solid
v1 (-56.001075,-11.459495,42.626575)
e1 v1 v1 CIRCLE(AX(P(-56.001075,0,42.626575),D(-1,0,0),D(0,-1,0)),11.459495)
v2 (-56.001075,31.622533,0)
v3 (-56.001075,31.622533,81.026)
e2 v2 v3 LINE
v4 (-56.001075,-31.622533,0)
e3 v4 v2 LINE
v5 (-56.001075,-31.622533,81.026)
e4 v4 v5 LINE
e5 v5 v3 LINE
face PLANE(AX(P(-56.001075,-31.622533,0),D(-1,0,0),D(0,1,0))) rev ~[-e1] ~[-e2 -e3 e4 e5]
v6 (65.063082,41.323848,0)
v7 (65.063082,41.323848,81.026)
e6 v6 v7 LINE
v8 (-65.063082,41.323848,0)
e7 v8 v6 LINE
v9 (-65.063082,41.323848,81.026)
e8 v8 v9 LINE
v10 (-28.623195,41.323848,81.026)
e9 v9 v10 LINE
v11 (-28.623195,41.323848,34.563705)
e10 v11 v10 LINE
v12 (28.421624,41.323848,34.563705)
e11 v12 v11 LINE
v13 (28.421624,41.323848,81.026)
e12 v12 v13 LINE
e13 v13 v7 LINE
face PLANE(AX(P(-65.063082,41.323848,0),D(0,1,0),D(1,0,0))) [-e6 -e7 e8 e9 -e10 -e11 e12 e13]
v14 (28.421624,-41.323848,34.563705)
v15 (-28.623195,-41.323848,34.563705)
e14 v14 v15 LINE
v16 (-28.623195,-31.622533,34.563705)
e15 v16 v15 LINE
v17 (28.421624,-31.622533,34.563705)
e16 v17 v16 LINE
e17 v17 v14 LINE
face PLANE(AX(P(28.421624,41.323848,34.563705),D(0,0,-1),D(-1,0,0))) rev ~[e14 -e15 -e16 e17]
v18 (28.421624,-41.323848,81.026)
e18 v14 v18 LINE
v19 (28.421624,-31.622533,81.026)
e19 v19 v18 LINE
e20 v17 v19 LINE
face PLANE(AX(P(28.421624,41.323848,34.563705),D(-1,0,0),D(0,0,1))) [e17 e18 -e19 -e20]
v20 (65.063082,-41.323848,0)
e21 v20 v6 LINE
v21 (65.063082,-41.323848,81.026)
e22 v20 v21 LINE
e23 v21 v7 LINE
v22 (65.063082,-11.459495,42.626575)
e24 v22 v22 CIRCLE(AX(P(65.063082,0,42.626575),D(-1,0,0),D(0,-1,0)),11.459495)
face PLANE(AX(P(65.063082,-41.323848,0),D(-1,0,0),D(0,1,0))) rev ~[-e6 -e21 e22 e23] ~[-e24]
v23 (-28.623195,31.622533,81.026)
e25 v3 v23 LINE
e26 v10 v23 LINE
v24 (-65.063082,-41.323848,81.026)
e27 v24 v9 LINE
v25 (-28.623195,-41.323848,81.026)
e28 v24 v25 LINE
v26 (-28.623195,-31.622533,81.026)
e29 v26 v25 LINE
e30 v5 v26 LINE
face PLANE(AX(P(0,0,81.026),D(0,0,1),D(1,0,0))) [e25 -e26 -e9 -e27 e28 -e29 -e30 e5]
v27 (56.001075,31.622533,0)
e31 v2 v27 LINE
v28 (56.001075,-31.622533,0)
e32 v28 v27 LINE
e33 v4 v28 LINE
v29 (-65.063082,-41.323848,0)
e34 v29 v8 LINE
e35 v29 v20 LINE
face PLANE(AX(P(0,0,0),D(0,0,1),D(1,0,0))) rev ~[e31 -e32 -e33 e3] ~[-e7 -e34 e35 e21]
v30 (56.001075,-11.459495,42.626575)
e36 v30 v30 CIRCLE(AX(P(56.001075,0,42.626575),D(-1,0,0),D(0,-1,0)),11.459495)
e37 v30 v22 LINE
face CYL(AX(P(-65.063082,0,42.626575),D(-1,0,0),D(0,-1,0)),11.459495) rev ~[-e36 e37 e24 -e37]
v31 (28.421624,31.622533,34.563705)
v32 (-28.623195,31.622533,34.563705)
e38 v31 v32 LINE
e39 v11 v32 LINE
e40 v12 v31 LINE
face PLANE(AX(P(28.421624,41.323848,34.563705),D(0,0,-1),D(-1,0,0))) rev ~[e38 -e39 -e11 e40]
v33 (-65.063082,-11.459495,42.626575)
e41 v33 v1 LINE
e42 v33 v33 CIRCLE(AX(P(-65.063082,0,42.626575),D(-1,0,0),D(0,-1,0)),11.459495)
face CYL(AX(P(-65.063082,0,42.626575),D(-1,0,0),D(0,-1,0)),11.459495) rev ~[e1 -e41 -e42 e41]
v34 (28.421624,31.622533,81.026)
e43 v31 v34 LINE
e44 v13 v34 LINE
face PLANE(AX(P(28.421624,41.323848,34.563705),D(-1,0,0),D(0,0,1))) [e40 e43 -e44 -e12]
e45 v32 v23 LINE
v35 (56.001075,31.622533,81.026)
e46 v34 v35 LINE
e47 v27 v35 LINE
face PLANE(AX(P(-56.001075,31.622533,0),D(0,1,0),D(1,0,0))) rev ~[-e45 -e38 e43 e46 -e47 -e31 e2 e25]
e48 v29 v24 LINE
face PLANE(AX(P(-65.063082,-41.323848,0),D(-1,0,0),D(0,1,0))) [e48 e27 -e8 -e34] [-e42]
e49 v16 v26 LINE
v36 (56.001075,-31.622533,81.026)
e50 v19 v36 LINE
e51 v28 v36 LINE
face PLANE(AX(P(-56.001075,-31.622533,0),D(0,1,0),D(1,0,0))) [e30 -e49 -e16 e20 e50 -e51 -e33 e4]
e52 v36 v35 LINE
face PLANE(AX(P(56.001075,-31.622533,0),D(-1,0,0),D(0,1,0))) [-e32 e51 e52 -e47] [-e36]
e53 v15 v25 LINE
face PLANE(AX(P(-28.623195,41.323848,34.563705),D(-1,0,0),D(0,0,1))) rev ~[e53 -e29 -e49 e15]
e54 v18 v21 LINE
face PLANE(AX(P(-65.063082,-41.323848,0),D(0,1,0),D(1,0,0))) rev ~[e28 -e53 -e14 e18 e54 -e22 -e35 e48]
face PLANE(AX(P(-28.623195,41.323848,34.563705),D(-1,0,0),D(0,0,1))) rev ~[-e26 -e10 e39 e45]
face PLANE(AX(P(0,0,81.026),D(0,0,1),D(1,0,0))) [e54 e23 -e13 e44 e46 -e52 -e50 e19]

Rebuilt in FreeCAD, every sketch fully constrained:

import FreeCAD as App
import Part
import Sketcher
from FreeCAD import Vector
Q = App.Units.Quantity


def add_polygon(sketch, points):
    """Adds a closed chain of lines whose ends are joined by coincident constraints."""
    first, n = sketch.GeometryCount, len(points)
    for a, b in zip(points, points[1:] + points[:1]):
        sketch.addGeometry(Part.LineSegment(App.Vector(*a, 0), App.Vector(*b, 0)), False)
    for i in range(n):
        sketch.addConstraint(Sketcher.Constraint("Coincident", first + i, 2, first + (i + 1) % n, 1))

doc = App.newDocument("Part")
body = doc.addObject("PartDesign::Body", "Body")

# Sketch on XY plane
sketch1 = body.newObject("Sketcher::SketchObject", "Sketch")
sketch1.AttachmentSupport = (doc.getObject("XY_Plane"), [""])
sketch1.MapMode = "FlatFace"
add_polygon(sketch1, [(-65, 41), (-65, -41), (65, -41), (65, 41)])  # lines 0-3
add_polygon(sketch1, [(56, -32), (-56, -32), (-56, 32), (56, 32)])  # lines 4-7
sketch1.addConstraint(Sketcher.Constraint("Vertical", 0))
sketch1.addConstraint(Sketcher.Constraint("Horizontal", 1))
sketch1.addConstraint(Sketcher.Constraint("Vertical", 2))
sketch1.addConstraint(Sketcher.Constraint("Horizontal", 3))
sketch1.addConstraint(Sketcher.Constraint("Horizontal", 4))
sketch1.addConstraint(Sketcher.Constraint("Vertical", 5))
sketch1.addConstraint(Sketcher.Constraint("Horizontal", 6))
sketch1.addConstraint(Sketcher.Constraint("Vertical", 7))
sketch1.addConstraint(Sketcher.Constraint("Symmetric", 0, 2, 2, 2, -1, 1))
sketch1.addConstraint(Sketcher.Constraint("Symmetric", 4, 2, 6, 2, -1, 1))
sketch1.addConstraint(Sketcher.Constraint("DistanceX", 4, 2, 4, 1, Q("112.002149 mm")))
sketch1.addConstraint(Sketcher.Constraint("DistanceX", 1, 1, 1, 2, Q("130.126163 mm")))
sketch1.addConstraint(Sketcher.Constraint("DistanceY", 0, 2, 0, 1, Q("82.647696 mm")))
sketch1.addConstraint(Sketcher.Constraint("DistanceY", 5, 1, 5, 2, Q("63.245066 mm")))
pad1 = body.newObject("PartDesign::Pad", "Pad")
pad1.Profile = sketch1
pad1.Length = Q("3.19 in")

# Sketch on XZ plane
sketch2 = body.newObject("Sketcher::SketchObject", "Sketch001")
sketch2.AttachmentSupport = (doc.getObject("XZ_Plane"), [""])
sketch2.MapMode = "FlatFace"
sketch2.AttachmentOffset = App.Placement(Vector(0, 0, -41.323848), App.Rotation())
add_polygon(sketch2, [(28, 81), (28, 35), (-29, 35), (-29, 81)])  # lines 0-3
sketch2.addConstraint(Sketcher.Constraint("Vertical", 0))
sketch2.addConstraint(Sketcher.Constraint("Horizontal", 1))
sketch2.addConstraint(Sketcher.Constraint("Vertical", 2))
sketch2.addConstraint(Sketcher.Constraint("Horizontal", 3))
sketch2.addConstraint(Sketcher.Constraint("DistanceY", -1, 1, 2, 2, Q("3.19 in")))
sketch2.addConstraint(Sketcher.Constraint("DistanceX", 1, 2, 1, 1, Q("57.044819 mm")))
sketch2.addConstraint(Sketcher.Constraint("DistanceY", 0, 2, 0, 1, Q("46.462295 mm")))
sketch2.addConstraint(Sketcher.Constraint("DistanceX", -1, 1, 0, 2, Q("28.421624 mm")))
pocket1 = body.newObject("PartDesign::Pocket", "Pocket")
pocket1.Profile = sketch2
pocket1.Length = Q("4.14 in")
pocket1.Reversed = True

# Sketch on YZ plane
sketch3 = body.newObject("Sketcher::SketchObject", "Sketch002")
sketch3.AttachmentSupport = (doc.getObject("YZ_Plane"), [""])
sketch3.MapMode = "FlatFace"
sketch3.AttachmentOffset = App.Placement(Vector(0, 0, -65.063082), App.Rotation())
sketch3.addGeometry(Part.Circle(Vector(0, 43, 0), Vector(0, 0, 1), 11), False)
sketch3.addConstraint(Sketcher.Constraint("PointOnObject", 0, 3, -2))
sketch3.addConstraint(Sketcher.Constraint("Diameter", 0, Q("22.91899 mm")))
sketch3.addConstraint(Sketcher.Constraint("DistanceY", -1, 1, 0, 3, Q("42.626575 mm")))
pocket2 = body.newObject("PartDesign::Pocket", "Pocket001")
pocket2.Profile = sketch3
pocket2.Length = Q("6.47 in")
pocket2.Reversed = True

doc.recompute()
